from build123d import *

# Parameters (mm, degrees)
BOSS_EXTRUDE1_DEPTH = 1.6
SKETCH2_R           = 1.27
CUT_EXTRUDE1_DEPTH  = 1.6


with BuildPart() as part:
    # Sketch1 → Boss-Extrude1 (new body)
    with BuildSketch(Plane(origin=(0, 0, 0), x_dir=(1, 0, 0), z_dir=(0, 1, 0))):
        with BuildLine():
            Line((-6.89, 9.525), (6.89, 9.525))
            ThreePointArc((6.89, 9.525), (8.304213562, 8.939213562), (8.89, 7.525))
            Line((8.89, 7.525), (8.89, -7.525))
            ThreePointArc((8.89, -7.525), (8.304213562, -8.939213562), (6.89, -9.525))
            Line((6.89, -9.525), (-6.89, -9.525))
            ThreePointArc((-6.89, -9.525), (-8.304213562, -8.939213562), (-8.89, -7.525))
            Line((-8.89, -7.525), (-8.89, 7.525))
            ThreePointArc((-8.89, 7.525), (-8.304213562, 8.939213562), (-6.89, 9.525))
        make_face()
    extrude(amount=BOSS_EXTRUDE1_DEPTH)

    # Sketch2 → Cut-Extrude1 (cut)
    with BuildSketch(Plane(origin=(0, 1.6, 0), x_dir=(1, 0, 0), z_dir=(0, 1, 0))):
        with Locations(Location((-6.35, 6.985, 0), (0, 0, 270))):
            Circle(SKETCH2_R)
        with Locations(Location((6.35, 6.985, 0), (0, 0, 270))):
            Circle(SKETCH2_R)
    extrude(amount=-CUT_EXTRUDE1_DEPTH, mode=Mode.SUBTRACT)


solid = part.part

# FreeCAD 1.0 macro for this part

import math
import FreeCAD as App
import Part
import Sketcher

V = App.Vector

doc = App.newDocument("Part")
body = doc.addObject("PartDesign::Body", "Body")

# Sketch on XZ plane
sketch1 = body.newObject("Sketcher::SketchObject", "Sketch")
sketch1.AttachmentSupport = (doc.getObject("XZ_Plane"), [""])
sketch1.MapMode = "FlatFace"
sketch1.addGeometry([
    Part.LineSegment(V(6.9, -9.5, 0), V(-6.9, -9.5, 0)),  # 0
    Part.ArcOfCircle(Part.Circle(V(-6.9, -7.5, 0), V(0, 0, 1), 2), math.radians(-180), math.radians(-90)),  # 1
    Part.LineSegment(V(-8.9, -7.5, 0), V(-8.9, 7.5, 0)),  # 2
    Part.ArcOfCircle(Part.Circle(V(-6.9, 7.5, 0), V(0, 0, 1), 2), math.radians(90), math.radians(180)),  # 3
    Part.LineSegment(V(-6.9, 9.5, 0), V(6.9, 9.5, 0)),  # 4
    Part.ArcOfCircle(Part.Circle(V(6.9, 7.5, 0), V(0, 0, 1), 2), math.radians(0), math.radians(90)),  # 5
    Part.LineSegment(V(8.9, 7.5, 0), V(8.9, -7.5, 0)),  # 6
    Part.ArcOfCircle(Part.Circle(V(6.9, -7.5, 0), V(0, 0, 1), 2), math.radians(-90), math.radians(0)),  # 7
], False)
sketch1.addConstraint([
    Sketcher.Constraint("Tangent", 0, 2, 1, 2),
    Sketcher.Constraint("Tangent", 1, 1, 2, 1),
    Sketcher.Constraint("Tangent", 2, 2, 3, 2),
    Sketcher.Constraint("Tangent", 3, 1, 4, 1),
    Sketcher.Constraint("Tangent", 4, 2, 5, 2),
    Sketcher.Constraint("Tangent", 5, 1, 6, 1),
    Sketcher.Constraint("Tangent", 6, 2, 7, 2),
    Sketcher.Constraint("Tangent", 7, 1, 0, 1),
    Sketcher.Constraint("Horizontal", 0),
    Sketcher.Constraint("Vertical", 2),
    Sketcher.Constraint("Horizontal", 4),
    Sketcher.Constraint("Vertical", 6),
    Sketcher.Constraint("Equal", 1, 3),
    Sketcher.Constraint("Equal", 3, 5),
    Sketcher.Constraint("Equal", 5, 7),
    Sketcher.Constraint("Symmetric", 1, 3, 5, 3, -1, 1),
    Sketcher.Constraint("Radius", 1, 2.0),
    Sketcher.Constraint("DistanceX", 0, 2, 0, 1, 13.78),
    Sketcher.Constraint("DistanceY", 2, 1, 2, 2, 15.05),
])
pad1 = body.newObject("PartDesign::Pad", "Pad")
pad1.Profile = sketch1
pad1.Length = 1.6
pad1.Reversed = True

# Sketch on XZ plane
sketch2 = body.newObject("Sketcher::SketchObject", "Sketch001")
sketch2.AttachmentSupport = (doc.getObject("XZ_Plane"), [""])
sketch2.MapMode = "FlatFace"
sketch2.AttachmentOffset = App.Placement(V(0, 0, -1.6), App.Rotation())
sketch2.addGeometry([
    Part.Circle(V(-6.3, -7, 0), V(0, 0, 1), 1.3),
    Part.Circle(V(6.3, -7, 0), V(0, 0, 1), 1.3),
], False)
sketch2.addConstraint([
    Sketcher.Constraint("Equal", 0, 1),
    Sketcher.Constraint("Symmetric", 0, 3, 1, 3, -2),
    Sketcher.Constraint("Diameter", 0, 2.54),
    Sketcher.Constraint("DistanceX", 0, 3, 1, 3, 12.7),
    Sketcher.Constraint("DistanceY", 0, 3, -1, 1, 6.985),
])
pocket1 = body.newObject("PartDesign::Pocket", "Pocket")
pocket1.Profile = sketch2
pocket1.Length = 1.6
pocket1.Reversed = True

doc.recompute()
